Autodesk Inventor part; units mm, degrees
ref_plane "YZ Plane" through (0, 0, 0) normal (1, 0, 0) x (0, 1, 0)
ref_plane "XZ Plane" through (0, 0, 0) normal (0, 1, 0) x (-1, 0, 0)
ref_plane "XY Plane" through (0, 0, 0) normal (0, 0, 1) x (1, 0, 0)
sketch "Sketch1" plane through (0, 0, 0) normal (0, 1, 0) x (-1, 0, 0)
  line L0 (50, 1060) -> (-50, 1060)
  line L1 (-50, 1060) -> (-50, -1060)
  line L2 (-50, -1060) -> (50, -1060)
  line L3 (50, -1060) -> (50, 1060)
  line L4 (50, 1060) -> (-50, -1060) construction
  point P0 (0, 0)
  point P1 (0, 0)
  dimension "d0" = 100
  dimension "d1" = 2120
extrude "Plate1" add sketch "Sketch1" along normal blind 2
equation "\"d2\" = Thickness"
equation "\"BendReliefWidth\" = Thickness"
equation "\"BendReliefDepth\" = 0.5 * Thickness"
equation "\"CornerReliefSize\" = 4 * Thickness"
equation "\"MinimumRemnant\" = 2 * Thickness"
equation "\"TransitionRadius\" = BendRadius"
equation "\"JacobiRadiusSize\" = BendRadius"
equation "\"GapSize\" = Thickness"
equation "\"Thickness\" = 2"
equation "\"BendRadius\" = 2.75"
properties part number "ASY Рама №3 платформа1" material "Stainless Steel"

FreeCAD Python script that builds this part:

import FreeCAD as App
import Part
import Sketcher

V = App.Vector


def add_polygon(sketch, points):
    """Adds a closed chain of lines whose ends are joined by coincident constraints."""
    first, n = sketch.GeometryCount, len(points)
    for a, b in zip(points, points[1:] + points[:1]):
        sketch.addGeometry(Part.LineSegment(App.Vector(*a, 0), App.Vector(*b, 0)), False)
    for i in range(n):
        sketch.addConstraint(Sketcher.Constraint("Coincident", first + i, 2, first + (i + 1) % n, 1))

doc = App.newDocument("Part")
body = doc.addObject("PartDesign::Body", "Body")

# Sketch on XZ plane
sketch1 = body.newObject("Sketcher::SketchObject", "Sketch")
sketch1.AttachmentSupport = (doc.getObject("XZ_Plane"), [""])
sketch1.MapMode = "FlatFace"
add_polygon(sketch1, [(-50, -1060), (-50, 1060), (50, 1060), (50, -1060)])  # lines 0-3
sketch1.addConstraint([
    Sketcher.Constraint("Vertical", 0),
    Sketcher.Constraint("Horizontal", 1),
    Sketcher.Constraint("Vertical", 2),
    Sketcher.Constraint("Horizontal", 3),
    Sketcher.Constraint("Symmetric", 0, 2, 2, 2, -1, 1),
    Sketcher.Constraint("DistanceX", 1, 1, 1, 2, 100.0),
    Sketcher.Constraint("DistanceY", 0, 1, 0, 2, 2120.0),
])
pad1 = body.newObject("PartDesign::Pad", "Pad")
pad1.Profile = sketch1
pad1.Length = 2
pad1.Reversed = True

doc.recompute()
